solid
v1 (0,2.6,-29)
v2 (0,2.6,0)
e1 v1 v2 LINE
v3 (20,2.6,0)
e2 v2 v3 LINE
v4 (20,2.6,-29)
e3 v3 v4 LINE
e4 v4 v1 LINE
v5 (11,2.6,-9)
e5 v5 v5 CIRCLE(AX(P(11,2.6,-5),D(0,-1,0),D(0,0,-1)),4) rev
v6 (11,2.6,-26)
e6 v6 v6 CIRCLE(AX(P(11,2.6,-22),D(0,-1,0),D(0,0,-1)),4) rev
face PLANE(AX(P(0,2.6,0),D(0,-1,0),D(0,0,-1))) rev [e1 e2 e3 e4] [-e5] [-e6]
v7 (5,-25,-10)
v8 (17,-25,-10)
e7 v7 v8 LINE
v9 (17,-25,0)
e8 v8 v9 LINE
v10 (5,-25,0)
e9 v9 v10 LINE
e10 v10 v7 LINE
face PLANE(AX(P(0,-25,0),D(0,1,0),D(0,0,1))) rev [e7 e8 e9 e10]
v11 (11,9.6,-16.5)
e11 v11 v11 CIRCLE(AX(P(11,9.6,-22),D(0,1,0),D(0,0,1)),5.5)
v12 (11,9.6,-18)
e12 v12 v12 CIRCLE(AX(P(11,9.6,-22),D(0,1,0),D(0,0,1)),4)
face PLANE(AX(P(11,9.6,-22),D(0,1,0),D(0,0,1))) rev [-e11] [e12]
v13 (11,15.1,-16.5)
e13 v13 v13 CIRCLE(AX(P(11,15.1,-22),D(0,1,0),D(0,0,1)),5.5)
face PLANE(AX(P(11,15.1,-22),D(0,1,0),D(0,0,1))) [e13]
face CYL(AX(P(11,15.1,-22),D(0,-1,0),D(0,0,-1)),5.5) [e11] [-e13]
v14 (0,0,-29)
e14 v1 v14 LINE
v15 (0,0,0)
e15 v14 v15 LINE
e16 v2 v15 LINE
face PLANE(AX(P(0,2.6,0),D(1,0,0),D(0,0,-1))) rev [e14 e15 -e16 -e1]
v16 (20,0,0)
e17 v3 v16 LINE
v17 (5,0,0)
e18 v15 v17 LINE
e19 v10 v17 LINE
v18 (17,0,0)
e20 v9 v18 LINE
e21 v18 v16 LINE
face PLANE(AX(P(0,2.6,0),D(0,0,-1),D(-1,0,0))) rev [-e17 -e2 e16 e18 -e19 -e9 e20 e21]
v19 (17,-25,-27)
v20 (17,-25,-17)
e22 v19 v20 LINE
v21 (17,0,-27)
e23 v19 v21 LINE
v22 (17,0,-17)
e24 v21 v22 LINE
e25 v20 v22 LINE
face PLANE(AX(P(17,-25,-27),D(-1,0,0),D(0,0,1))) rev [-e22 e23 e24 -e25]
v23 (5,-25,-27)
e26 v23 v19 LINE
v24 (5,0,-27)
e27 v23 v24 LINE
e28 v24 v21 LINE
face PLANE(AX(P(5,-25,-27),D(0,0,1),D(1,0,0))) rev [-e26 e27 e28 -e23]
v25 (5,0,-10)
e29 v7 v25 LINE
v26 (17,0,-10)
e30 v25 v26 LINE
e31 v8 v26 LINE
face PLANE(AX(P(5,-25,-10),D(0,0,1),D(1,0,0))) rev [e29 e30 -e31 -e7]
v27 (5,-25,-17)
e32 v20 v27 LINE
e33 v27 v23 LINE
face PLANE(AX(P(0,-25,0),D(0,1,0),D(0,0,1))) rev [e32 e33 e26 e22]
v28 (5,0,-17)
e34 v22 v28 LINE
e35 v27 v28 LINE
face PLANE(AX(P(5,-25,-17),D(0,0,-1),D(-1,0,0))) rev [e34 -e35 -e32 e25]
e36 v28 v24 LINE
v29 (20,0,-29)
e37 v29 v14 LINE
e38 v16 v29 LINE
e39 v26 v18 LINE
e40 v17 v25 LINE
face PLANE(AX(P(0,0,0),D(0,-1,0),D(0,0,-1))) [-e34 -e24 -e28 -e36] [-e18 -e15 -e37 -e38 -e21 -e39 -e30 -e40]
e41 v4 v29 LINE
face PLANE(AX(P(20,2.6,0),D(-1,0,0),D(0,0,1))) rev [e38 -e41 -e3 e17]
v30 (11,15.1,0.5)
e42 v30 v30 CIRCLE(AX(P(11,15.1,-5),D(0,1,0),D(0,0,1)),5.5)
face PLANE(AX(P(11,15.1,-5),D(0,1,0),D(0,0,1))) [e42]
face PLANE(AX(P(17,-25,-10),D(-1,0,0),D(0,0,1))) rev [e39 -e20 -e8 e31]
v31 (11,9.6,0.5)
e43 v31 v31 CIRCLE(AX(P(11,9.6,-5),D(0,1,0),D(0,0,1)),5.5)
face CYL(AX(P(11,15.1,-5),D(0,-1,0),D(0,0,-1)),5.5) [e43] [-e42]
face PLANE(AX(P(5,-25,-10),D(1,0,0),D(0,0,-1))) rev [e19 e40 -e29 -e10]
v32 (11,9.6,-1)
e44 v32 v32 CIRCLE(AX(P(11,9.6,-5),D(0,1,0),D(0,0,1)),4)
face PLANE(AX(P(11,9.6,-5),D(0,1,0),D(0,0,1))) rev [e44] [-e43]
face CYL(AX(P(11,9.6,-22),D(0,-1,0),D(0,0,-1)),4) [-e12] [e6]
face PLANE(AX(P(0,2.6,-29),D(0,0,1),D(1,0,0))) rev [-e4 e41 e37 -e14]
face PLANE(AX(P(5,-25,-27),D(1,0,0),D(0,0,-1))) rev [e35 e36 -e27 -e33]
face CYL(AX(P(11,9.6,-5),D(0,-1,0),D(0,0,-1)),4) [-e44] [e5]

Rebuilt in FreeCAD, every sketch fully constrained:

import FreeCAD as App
import Part
import Sketcher
from FreeCAD import Vector
Q = App.Units.Quantity


def add_polygon(sketch, points):
    """Adds a closed chain of lines whose ends are joined by coincident constraints."""
    first, n = sketch.GeometryCount, len(points)
    for a, b in zip(points, points[1:] + points[:1]):
        sketch.addGeometry(Part.LineSegment(App.Vector(*a, 0), App.Vector(*b, 0)), False)
    for i in range(n):
        sketch.addConstraint(Sketcher.Constraint("Coincident", first + i, 2, first + (i + 1) % n, 1))

doc = App.newDocument("Part")
body = doc.addObject("PartDesign::Body", "Body")

# Sketch on XZ plane
sketch1 = body.newObject("Sketcher::SketchObject", "Sketch")
sketch1.AttachmentSupport = (doc.getObject("XZ_Plane"), [""])
sketch1.MapMode = "FlatFace"
add_polygon(sketch1, [(0, -29), (0, 0), (20, 0), (20, -29)])  # lines 0-3
sketch1.addConstraint([
    Sketcher.Constraint("Vertical", 0),
    Sketcher.Constraint("Horizontal", 1),
    Sketcher.Constraint("Vertical", 2),
    Sketcher.Constraint("Horizontal", 3),
    Sketcher.Constraint("Coincident", 0, 2, -1, 1),
    Sketcher.Constraint("DistanceX", 1, 1, 1, 2, Q("20 mm")),
    Sketcher.Constraint("DistanceY", 0, 1, 0, 2, Q("29 mm")),
])
pad1 = body.newObject("PartDesign::Pad", "Pad")
pad1.Profile = sketch1
pad1.Length = 2.6
pad1.Reversed = True

# Sketch on XZ plane
sketch2 = body.newObject("Sketcher::SketchObject", "Sketch001")
sketch2.AttachmentSupport = (doc.getObject("XZ_Plane"), [""])
sketch2.MapMode = "FlatFace"
sketch2.AttachmentOffset = App.Placement(Vector(0, 0, -2.6), App.Rotation())
sketch2.addGeometry([
    Part.Circle(Vector(11, -5, 0), Vector(0, 0, 1), 4),
    Part.Circle(Vector(11, -22, 0), Vector(0, 0, 1), 4),
], False)
sketch2.addConstraint([
    Sketcher.Constraint("Equal", 0, 1),
    Sketcher.Constraint("Vertical", 0, 3, 1, 3),
    Sketcher.Constraint("Diameter", 0, Q("8 mm")),
    Sketcher.Constraint("DistanceX", -1, 1, 0, 3, Q("11 mm")),
    Sketcher.Constraint("DistanceY", 0, 3, -1, 1, Q("5 mm")),
    Sketcher.Constraint("DistanceY", 1, 3, -1, 1, Q("22 mm")),
])
pad2 = body.newObject("PartDesign::Pad", "Pad001")
pad2.Profile = sketch2
pad2.Length = 7
pad2.Reversed = True

# Sketch on XZ plane
sketch3 = body.newObject("Sketcher::SketchObject", "Sketch002")
sketch3.AttachmentSupport = (doc.getObject("XZ_Plane"), [""])
sketch3.MapMode = "FlatFace"
sketch3.AttachmentOffset = App.Placement(Vector(0, 0, -9.6), App.Rotation())
sketch3.addGeometry([
    Part.Circle(Vector(11, -22, 0), Vector(0, 0, 1), 5.5),
    Part.Circle(Vector(11, -5, 0), Vector(0, 0, 1), 5.5),
], False)
sketch3.addConstraint([
    Sketcher.Constraint("Equal", 0, 1),
    Sketcher.Constraint("Vertical", 0, 3, 1, 3),
    Sketcher.Constraint("Diameter", 0, Q("11 mm")),
    Sketcher.Constraint("DistanceX", -1, 1, 0, 3, Q("11 mm")),
    Sketcher.Constraint("DistanceY", 0, 3, -1, 1, Q("22 mm")),
    Sketcher.Constraint("DistanceY", 1, 3, -1, 1, Q("5 mm")),
])
pad3 = body.newObject("PartDesign::Pad", "Pad002")
pad3.Profile = sketch3
pad3.Length = 5.5
pad3.Reversed = True

# Sketch on XZ plane
sketch4 = body.newObject("Sketcher::SketchObject", "Sketch003")
sketch4.AttachmentSupport = (doc.getObject("XZ_Plane"), [""])
sketch4.MapMode = "FlatFace"
add_polygon(sketch4, [(5, -17), (5, -27), (17, -27), (17, -17)])  # lines 0-3
add_polygon(sketch4, [(5, 0), (5, -10), (17, -10), (17, 0)])  # lines 4-7
sketch4.addConstraint([
    Sketcher.Constraint("Vertical", 0),
    Sketcher.Constraint("Horizontal", 1),
    Sketcher.Constraint("Vertical", 2),
    Sketcher.Constraint("Horizontal", 3),
    Sketcher.Constraint("Vertical", 4),
    Sketcher.Constraint("Horizontal", 5),
    Sketcher.Constraint("Vertical", 6),
    Sketcher.Constraint("Horizontal", 7),
    Sketcher.Constraint("PointOnObject", 6, 2, -1),
    Sketcher.Constraint("Vertical", 3, 2, 4, 2),
    Sketcher.Constraint("Vertical", 2, 2, 5, 2),
    Sketcher.Constraint("Equal", 2, 4),
    Sketcher.Constraint("DistanceX", 1, 1, 1, 2, Q("12 mm")),
    Sketcher.Constraint("DistanceY", 0, 2, 0, 1, Q("10 mm")),
    Sketcher.Constraint("DistanceX", -1, 1, 0, 2, Q("5 mm")),
    Sketcher.Constraint("DistanceY", 0, 2, -1, 1, Q("27 mm")),
])
pad4 = body.newObject("PartDesign::Pad", "Pad003")
pad4.Profile = sketch4
pad4.Length = 25

doc.recompute()
